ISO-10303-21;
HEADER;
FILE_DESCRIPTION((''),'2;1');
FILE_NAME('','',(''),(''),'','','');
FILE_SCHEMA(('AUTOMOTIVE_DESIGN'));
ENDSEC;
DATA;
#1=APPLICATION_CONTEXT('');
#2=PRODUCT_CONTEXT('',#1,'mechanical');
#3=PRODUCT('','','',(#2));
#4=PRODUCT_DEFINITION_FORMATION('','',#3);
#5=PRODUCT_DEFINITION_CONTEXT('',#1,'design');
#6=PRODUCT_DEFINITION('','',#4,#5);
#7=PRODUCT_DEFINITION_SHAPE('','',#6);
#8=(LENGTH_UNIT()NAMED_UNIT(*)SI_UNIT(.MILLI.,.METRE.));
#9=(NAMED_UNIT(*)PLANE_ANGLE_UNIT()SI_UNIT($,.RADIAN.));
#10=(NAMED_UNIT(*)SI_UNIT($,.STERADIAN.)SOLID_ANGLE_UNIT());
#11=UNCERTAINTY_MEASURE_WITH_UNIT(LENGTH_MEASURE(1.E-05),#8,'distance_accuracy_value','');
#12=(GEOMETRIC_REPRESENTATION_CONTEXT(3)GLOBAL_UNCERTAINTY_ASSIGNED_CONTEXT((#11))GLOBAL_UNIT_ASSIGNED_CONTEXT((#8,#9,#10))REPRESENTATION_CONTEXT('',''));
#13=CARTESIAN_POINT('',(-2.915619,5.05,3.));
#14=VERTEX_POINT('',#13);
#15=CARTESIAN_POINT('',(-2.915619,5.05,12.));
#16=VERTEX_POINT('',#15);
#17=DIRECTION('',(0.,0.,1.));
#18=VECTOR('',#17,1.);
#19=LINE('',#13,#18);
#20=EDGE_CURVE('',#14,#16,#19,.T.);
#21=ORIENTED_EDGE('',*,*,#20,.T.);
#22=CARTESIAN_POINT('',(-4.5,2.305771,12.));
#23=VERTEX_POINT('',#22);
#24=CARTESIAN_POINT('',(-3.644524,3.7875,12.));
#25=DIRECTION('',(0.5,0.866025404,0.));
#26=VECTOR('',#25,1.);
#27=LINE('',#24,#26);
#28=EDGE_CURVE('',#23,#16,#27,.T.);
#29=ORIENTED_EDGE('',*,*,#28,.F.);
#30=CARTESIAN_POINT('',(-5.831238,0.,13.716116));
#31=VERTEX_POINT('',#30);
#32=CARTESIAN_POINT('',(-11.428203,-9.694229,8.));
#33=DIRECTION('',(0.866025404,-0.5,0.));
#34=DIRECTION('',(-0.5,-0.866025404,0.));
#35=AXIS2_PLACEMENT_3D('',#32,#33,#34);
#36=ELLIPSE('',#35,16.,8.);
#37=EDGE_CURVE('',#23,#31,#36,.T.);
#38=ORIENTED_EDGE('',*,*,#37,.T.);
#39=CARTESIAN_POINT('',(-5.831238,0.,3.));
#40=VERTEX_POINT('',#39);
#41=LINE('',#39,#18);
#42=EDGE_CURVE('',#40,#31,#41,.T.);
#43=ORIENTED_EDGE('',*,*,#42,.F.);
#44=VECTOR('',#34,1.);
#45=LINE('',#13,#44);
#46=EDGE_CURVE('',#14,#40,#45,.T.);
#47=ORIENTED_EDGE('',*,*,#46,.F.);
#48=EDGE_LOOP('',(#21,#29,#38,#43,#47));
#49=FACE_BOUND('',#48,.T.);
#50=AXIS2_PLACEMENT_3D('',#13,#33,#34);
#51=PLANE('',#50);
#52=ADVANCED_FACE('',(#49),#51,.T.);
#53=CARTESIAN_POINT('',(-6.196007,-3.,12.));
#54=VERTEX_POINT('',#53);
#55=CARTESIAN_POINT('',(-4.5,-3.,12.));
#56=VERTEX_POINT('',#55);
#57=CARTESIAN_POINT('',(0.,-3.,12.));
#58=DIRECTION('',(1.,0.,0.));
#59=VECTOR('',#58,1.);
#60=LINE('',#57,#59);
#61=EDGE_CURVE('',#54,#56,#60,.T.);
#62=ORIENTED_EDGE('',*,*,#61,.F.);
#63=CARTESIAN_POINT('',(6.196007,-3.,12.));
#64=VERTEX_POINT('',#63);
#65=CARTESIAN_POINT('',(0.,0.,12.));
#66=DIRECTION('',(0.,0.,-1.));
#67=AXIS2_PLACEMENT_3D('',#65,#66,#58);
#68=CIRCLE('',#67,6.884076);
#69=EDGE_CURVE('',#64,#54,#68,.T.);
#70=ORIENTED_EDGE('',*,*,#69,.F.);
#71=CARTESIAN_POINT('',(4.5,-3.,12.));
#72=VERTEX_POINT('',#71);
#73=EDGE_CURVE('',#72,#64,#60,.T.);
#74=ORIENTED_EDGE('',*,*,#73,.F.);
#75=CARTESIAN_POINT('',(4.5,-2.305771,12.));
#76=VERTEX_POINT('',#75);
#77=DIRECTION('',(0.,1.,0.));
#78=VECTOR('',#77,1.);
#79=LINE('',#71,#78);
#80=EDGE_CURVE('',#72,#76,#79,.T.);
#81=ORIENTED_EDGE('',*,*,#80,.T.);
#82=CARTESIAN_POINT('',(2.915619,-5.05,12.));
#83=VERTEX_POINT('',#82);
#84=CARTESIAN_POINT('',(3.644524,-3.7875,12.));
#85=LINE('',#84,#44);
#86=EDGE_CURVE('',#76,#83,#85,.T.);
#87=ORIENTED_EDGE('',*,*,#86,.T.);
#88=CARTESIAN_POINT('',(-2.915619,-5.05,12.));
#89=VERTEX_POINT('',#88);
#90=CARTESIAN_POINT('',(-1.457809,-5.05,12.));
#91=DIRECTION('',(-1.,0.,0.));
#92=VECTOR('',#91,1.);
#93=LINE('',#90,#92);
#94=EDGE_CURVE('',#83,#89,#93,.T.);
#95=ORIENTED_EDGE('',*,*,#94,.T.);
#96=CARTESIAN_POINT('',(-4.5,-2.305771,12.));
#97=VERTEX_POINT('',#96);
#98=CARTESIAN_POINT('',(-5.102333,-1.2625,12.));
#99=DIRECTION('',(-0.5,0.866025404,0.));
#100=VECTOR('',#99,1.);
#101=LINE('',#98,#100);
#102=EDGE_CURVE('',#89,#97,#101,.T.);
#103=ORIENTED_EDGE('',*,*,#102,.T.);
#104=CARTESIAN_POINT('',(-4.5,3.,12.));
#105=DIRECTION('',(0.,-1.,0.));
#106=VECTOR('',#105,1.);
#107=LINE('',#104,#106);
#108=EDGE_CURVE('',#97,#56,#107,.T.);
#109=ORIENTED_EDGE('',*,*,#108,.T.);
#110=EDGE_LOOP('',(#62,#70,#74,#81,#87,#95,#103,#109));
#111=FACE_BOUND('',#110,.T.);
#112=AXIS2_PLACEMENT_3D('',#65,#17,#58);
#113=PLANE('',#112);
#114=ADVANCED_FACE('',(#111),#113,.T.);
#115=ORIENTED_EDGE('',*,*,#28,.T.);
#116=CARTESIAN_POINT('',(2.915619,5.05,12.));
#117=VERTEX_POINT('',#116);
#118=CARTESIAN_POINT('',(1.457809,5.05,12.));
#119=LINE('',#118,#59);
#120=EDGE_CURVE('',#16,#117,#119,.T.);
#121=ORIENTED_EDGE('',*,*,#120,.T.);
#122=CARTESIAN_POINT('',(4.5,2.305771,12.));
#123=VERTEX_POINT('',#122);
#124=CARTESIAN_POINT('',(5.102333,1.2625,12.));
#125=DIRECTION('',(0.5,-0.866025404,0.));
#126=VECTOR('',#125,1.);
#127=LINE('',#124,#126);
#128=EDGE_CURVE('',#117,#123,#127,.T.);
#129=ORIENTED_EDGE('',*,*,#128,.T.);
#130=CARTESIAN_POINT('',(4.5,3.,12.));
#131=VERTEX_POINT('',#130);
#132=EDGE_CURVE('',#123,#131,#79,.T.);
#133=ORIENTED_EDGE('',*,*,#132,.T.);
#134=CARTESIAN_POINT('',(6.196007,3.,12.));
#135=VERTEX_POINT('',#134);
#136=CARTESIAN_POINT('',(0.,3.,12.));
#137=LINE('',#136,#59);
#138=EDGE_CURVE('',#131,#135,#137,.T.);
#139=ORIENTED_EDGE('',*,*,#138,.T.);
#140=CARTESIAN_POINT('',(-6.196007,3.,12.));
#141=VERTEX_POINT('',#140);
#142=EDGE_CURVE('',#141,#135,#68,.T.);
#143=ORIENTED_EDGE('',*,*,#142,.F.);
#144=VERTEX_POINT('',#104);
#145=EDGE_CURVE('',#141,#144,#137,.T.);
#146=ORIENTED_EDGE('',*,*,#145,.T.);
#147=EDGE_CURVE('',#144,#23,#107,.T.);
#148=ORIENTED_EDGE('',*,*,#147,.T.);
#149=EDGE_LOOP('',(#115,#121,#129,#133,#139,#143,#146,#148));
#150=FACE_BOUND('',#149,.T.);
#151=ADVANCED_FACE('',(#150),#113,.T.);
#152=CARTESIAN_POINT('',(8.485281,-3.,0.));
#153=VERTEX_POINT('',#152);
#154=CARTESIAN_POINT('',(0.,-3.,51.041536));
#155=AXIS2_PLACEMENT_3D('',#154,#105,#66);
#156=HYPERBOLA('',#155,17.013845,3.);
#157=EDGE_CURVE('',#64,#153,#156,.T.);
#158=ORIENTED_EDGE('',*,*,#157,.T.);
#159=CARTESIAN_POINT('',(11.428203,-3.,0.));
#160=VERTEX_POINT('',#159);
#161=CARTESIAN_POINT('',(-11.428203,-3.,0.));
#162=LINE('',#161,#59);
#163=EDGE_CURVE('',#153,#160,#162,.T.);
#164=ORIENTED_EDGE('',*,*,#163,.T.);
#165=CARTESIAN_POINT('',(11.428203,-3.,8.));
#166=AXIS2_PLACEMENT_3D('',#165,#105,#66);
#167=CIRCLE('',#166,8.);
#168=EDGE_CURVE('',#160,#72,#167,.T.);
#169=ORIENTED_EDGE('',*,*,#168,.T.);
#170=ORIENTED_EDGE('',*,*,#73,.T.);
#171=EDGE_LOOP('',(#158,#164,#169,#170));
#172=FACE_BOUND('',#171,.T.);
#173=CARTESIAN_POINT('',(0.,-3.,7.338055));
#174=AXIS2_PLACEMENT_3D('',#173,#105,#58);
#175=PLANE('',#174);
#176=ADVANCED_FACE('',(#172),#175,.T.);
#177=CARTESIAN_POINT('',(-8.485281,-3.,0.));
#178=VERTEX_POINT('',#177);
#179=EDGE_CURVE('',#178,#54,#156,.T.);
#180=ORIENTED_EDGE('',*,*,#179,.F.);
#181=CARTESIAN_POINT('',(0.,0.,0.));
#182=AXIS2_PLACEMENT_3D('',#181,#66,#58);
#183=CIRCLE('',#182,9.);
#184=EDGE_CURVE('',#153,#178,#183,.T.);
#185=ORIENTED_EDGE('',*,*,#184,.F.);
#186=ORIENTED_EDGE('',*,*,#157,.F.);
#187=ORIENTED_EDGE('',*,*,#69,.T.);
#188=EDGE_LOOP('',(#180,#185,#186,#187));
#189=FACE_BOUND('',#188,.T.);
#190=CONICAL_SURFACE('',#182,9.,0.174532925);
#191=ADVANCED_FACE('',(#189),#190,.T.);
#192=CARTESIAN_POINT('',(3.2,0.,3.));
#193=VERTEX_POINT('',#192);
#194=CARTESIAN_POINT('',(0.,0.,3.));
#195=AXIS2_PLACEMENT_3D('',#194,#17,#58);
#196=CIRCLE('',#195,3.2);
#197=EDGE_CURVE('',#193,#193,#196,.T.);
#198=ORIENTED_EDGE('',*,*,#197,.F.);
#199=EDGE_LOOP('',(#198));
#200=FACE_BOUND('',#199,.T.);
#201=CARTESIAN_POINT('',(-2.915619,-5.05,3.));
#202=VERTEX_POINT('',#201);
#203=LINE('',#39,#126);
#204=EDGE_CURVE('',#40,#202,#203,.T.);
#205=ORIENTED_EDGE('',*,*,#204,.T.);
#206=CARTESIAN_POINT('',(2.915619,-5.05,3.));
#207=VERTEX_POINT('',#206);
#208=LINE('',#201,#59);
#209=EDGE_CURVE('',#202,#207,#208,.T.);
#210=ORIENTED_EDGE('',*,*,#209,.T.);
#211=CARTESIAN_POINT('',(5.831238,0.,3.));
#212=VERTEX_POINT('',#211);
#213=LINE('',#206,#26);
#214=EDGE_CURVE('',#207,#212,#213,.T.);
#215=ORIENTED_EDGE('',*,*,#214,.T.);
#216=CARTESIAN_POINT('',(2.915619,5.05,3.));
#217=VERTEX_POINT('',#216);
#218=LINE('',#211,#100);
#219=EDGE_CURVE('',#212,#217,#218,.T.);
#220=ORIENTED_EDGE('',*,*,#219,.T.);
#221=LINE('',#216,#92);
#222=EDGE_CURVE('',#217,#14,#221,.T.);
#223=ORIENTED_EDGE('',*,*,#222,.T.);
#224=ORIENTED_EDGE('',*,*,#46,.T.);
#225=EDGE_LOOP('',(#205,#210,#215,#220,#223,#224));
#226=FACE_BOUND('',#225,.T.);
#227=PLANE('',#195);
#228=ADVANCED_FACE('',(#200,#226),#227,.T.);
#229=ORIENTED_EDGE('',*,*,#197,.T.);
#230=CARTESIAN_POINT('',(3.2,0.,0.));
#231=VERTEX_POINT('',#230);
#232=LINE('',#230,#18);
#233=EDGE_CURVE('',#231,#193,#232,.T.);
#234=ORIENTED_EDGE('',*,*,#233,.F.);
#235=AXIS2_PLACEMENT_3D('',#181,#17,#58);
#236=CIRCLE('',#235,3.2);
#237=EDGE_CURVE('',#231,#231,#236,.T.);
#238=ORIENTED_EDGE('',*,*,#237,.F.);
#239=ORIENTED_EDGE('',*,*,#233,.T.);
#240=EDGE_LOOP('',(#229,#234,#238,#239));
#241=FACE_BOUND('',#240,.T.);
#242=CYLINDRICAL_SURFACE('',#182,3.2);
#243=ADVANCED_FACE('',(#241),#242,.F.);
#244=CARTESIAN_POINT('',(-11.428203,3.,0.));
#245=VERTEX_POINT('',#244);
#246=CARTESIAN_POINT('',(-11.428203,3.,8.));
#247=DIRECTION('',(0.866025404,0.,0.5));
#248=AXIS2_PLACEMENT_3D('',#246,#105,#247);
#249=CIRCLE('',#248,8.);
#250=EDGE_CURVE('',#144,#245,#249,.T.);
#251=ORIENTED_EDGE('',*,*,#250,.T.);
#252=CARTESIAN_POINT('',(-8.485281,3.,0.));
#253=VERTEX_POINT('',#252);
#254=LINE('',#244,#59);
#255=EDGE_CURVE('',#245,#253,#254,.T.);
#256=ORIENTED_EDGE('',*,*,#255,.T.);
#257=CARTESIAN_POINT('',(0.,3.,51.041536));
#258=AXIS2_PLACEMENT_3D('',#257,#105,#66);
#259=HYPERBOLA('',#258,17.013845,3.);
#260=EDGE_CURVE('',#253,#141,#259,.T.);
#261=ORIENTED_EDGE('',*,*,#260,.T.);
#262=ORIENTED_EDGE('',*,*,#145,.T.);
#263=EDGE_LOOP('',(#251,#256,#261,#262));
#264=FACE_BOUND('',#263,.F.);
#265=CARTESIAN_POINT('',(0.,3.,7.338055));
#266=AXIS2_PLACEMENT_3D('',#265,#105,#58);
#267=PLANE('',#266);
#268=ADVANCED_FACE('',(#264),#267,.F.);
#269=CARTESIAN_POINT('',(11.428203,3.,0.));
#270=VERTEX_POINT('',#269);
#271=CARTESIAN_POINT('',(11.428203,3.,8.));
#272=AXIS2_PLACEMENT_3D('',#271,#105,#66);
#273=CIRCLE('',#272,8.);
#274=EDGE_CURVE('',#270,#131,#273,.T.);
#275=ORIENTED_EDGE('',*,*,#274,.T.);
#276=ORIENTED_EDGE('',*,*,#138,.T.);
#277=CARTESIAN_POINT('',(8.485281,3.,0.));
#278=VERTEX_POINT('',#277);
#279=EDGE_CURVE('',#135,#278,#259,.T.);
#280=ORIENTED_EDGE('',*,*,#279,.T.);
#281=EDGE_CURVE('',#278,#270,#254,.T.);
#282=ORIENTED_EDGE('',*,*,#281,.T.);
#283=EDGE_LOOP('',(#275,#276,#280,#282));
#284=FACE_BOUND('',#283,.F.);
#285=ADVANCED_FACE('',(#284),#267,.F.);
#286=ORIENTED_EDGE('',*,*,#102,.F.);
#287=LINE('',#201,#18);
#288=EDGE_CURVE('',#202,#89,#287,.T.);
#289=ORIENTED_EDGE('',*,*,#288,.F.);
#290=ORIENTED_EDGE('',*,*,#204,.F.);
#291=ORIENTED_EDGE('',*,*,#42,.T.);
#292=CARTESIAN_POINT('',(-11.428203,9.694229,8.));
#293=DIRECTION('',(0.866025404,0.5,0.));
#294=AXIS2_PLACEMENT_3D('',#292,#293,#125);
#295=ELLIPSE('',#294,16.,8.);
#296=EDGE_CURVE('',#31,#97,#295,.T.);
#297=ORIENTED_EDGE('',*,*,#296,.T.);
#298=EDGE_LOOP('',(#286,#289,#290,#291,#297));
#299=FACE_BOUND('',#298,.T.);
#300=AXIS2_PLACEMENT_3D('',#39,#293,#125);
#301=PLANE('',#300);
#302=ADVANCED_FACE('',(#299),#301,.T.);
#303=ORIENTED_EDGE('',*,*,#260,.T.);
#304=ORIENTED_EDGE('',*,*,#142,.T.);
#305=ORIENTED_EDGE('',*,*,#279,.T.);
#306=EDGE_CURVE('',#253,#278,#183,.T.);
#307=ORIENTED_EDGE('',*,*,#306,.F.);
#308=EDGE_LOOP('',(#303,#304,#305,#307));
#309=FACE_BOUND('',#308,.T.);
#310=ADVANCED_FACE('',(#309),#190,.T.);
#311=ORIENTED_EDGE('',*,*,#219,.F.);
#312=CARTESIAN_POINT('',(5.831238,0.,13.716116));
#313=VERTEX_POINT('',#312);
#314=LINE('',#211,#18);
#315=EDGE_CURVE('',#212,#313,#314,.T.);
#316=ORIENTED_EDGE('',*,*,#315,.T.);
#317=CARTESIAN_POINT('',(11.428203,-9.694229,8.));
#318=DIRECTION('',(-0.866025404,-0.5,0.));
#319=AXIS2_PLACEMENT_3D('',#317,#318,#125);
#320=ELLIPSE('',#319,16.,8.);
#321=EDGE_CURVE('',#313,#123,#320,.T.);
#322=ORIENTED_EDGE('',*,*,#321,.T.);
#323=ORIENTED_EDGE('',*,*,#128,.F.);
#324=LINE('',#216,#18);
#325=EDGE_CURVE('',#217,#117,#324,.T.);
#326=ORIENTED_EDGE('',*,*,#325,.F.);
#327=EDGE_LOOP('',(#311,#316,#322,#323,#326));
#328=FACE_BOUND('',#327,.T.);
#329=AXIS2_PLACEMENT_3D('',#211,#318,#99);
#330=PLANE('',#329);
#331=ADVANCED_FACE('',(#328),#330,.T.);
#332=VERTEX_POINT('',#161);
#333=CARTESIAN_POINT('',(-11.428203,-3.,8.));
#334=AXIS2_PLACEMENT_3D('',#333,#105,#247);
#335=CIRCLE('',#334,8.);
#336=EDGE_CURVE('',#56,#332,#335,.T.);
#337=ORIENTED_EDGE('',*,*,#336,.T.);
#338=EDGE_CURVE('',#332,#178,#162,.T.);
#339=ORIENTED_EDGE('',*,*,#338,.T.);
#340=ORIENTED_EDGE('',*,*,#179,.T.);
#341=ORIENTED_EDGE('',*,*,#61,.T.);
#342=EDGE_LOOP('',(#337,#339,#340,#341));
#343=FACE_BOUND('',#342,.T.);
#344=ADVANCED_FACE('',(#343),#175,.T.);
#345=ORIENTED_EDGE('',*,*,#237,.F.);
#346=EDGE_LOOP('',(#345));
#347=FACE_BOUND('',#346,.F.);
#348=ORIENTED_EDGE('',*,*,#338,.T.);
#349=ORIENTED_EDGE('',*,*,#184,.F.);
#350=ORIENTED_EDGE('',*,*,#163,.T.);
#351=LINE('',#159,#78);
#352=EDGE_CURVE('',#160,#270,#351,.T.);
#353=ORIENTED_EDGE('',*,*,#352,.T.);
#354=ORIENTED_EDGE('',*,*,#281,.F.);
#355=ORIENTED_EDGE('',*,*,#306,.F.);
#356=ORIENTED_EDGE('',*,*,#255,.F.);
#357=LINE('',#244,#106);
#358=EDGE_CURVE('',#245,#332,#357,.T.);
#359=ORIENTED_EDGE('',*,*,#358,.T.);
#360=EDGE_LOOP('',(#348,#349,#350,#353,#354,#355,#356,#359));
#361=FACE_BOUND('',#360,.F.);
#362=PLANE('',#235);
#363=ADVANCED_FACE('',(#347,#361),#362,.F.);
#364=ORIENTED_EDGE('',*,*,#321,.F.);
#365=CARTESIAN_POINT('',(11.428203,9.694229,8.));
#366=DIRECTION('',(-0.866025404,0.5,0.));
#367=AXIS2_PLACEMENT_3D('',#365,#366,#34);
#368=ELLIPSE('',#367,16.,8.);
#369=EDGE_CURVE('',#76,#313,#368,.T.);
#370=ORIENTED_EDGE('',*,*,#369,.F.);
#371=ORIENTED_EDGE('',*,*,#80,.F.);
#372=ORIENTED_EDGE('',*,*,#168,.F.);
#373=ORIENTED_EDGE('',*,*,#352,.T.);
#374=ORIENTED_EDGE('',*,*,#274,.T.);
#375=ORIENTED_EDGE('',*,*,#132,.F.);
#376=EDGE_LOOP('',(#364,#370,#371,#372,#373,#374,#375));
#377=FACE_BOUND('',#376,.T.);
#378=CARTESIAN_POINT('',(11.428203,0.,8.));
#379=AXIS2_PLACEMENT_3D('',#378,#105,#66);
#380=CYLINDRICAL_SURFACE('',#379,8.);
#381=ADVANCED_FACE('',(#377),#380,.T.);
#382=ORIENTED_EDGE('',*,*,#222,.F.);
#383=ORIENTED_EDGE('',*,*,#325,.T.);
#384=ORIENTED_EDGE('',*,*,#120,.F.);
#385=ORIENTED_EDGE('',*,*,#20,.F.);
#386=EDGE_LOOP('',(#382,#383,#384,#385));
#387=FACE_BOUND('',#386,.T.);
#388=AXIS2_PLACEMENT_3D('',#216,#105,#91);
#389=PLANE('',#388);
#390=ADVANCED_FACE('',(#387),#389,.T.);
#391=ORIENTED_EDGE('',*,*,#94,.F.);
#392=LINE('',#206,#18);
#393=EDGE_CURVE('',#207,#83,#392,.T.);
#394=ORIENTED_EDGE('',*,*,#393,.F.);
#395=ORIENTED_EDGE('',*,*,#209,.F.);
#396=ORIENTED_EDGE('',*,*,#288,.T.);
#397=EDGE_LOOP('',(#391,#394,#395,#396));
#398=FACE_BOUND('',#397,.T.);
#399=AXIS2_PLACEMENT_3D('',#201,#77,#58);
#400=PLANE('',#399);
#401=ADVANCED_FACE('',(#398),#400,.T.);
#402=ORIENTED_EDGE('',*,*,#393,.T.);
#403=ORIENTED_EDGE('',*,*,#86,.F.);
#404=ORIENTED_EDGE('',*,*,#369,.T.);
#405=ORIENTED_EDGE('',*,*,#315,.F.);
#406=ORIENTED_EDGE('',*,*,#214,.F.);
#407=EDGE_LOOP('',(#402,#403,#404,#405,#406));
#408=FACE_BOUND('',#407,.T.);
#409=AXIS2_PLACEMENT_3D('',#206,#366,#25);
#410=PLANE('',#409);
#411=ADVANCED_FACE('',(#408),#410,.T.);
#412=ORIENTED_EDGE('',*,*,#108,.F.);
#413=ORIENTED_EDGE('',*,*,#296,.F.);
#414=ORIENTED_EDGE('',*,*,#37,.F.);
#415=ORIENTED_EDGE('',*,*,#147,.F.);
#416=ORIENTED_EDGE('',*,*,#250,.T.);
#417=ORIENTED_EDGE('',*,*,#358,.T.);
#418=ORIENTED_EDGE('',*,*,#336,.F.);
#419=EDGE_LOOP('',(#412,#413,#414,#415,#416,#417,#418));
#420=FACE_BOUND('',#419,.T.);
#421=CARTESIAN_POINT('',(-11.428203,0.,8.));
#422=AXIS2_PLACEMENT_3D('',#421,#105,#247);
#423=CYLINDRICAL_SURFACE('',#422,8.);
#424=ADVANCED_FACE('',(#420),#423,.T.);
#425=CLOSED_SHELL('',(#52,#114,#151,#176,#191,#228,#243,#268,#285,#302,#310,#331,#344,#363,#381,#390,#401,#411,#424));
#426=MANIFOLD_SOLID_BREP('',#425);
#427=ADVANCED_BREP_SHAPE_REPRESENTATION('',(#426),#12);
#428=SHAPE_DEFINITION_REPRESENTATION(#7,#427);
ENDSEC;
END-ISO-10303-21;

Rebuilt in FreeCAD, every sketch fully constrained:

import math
import FreeCAD as App
import Part
import Sketcher
Q = App.Units.Quantity

doc = App.newDocument("Part")
body = doc.addObject("PartDesign::Body", "Body")

# Sketch on XY plane
sketch1 = body.newObject("Sketcher::SketchObject", "Sketch")
sketch1.AttachmentSupport = (doc.getObject("XY_Plane"), [""])
sketch1.MapMode = "FlatFace"
sketch1.addGeometry(Part.Circle(App.Vector(0, 0, 0), App.Vector(0, 0, 1), 9), False)
sketch1.addConstraint(Sketcher.Constraint("Coincident", 0, 3, -1, 1))
sketch1.addConstraint(Sketcher.Constraint("Diameter", 0, 18.0))
pad1 = body.newObject("PartDesign::Pad", "Pad")
pad1.Profile = sketch1
pad1.Length = 12
pad1.TaperAngle = -10

# Sketch on XZ plane
sketch2 = body.newObject("Sketcher::SketchObject", "Sketch001")
sketch2.AttachmentSupport = (doc.getObject("XZ_Plane"), [""])
sketch2.MapMode = "FlatFace"
sketch2.addGeometry(Part.LineSegment(App.Vector(4.5, 12, 0), App.Vector(-4.5, 12, 0)), False)
sketch2.addGeometry(Part.ArcOfCircle(Part.Circle(App.Vector(-11.428203, 8, 0), App.Vector(0, 0, 1), 8), math.radians(30), math.radians(270)), False)
sketch2.addGeometry(Part.LineSegment(App.Vector(-11.428203, 0, 0), App.Vector(11.428203, 0, 0)), False)
sketch2.addGeometry(Part.ArcOfCircle(Part.Circle(App.Vector(11.428203, 8, 0), App.Vector(0, 0, 1), 8), math.radians(-90), math.radians(150)), False)
sketch2.addConstraint(Sketcher.Constraint("Coincident", 0, 2, 1, 1))
sketch2.addConstraint(Sketcher.Constraint("Tangent", 1, 2, 2, 1))
sketch2.addConstraint(Sketcher.Constraint("Tangent", 2, 2, 3, 1))
sketch2.addConstraint(Sketcher.Constraint("Coincident", 3, 2, 0, 1))
sketch2.addConstraint(Sketcher.Constraint("Horizontal", 0))
sketch2.addConstraint(Sketcher.Constraint("Horizontal", 2))
sketch2.addConstraint(Sketcher.Constraint("Equal", 1, 3))
sketch2.addConstraint(Sketcher.Constraint("Symmetric", 1, 2, 2, 2, -1, 1))
sketch2.addConstraint(Sketcher.Constraint("Radius", 1, 8.0))
sketch2.addConstraint(Sketcher.Constraint("DistanceX", 0, 2, 0, 1, 9.0))
sketch2.addConstraint(Sketcher.Constraint("DistanceY", -1, 1, 0, 2, 12.0))
pad2 = body.newObject("PartDesign::Pad", "Pad001")
pad2.Profile = sketch2
pad2.Length = 6
pad2.Midplane = True

# Sketch on XY plane
sketch3 = body.newObject("Sketcher::SketchObject", "Sketch002")
sketch3.AttachmentSupport = (doc.getObject("XY_Plane"), [""])
sketch3.MapMode = "FlatFace"
sketch3.addGeometry(Part.Circle(App.Vector(0, 0, 0), App.Vector(0, 0, 1), 3.2), False)
sketch3.addConstraint(Sketcher.Constraint("Coincident", 0, 3, -1, 1))
sketch3.addConstraint(Sketcher.Constraint("Diameter", 0, 6.4))
pocket1 = body.newObject("PartDesign::Pocket", "Pocket")
pocket1.Profile = sketch3
pocket1.Type = "ThroughAll"
pocket1.Reversed = True

# Sketch on XY plane
sketch4 = body.newObject("Sketcher::SketchObject", "Sketch003")
sketch4.AttachmentSupport = (doc.getObject("XY_Plane"), [""])
sketch4.MapMode = "FlatFace"
sketch4.AttachmentOffset = App.Placement(App.Vector(0, 0, 3), App.Rotation())
sketch4.addGeometry(Part.LineSegment(App.Vector(2.915619, 5.05, 0), App.Vector(-2.915619, 5.05, 0)), False)
sketch4.addGeometry(Part.LineSegment(App.Vector(-2.915619, 5.05, 0), App.Vector(-5.831238, 0, 0)), False)
sketch4.addGeometry(Part.LineSegment(App.Vector(-5.831238, 0, 0), App.Vector(-2.915619, -5.05, 0)), False)
sketch4.addGeometry(Part.LineSegment(App.Vector(-2.915619, -5.05, 0), App.Vector(2.915619, -5.05, 0)), False)
sketch4.addGeometry(Part.LineSegment(App.Vector(2.915619, -5.05, 0), App.Vector(5.831238, 0, 0)), False)
sketch4.addGeometry(Part.LineSegment(App.Vector(5.831238, 0, 0), App.Vector(2.915619, 5.05, 0)), False)
sketch4.addGeometry(Part.Circle(App.Vector(0, 0, 0), App.Vector(0, 0, 1), 3.2), False)
sketch4.addConstraint(Sketcher.Constraint("Coincident", 0, 2, 1, 1))
sketch4.addConstraint(Sketcher.Constraint("Coincident", 1, 2, 2, 1))
sketch4.addConstraint(Sketcher.Constraint("Coincident", 2, 2, 3, 1))
sketch4.addConstraint(Sketcher.Constraint("Coincident", 3, 2, 4, 1))
sketch4.addConstraint(Sketcher.Constraint("Coincident", 4, 2, 5, 1))
sketch4.addConstraint(Sketcher.Constraint("Coincident", 5, 2, 0, 1))
sketch4.addConstraint(Sketcher.Constraint("Horizontal", 0))
sketch4.addConstraint(Sketcher.Constraint("Horizontal", 3))
sketch4.addConstraint(Sketcher.Constraint("Coincident", 6, 3, -1, 1))
sketch4.addConstraint(Sketcher.Constraint("Symmetric", 0, 2, 3, 2, -1, 1))
sketch4.addConstraint(Sketcher.Constraint("Symmetric", 1, 2, 4, 2, -1, 1))
sketch4.addConstraint(Sketcher.Constraint("PointOnObject", 1, 2, -1))
sketch4.addConstraint(Sketcher.Constraint("Parallel", 2, 5))
sketch4.addConstraint(Sketcher.Constraint("Vertical", 0, 2, 2, 2))
sketch4.addConstraint(Sketcher.Constraint("Diameter", 6, 6.4))
sketch4.addConstraint(Sketcher.Constraint("Angle", 1, Q("-120 deg")))
sketch4.addConstraint(Sketcher.Constraint("DistanceY", 2, 2, 0, 2, 10.1))
sketch4.addConstraint(Sketcher.Constraint("DistanceX", 0, 2, 0, 1, 5.831238))
pocket2 = body.newObject("PartDesign::Pocket", "Pocket001")
pocket2.Profile = sketch4
pocket2.Length = 22
pocket2.Reversed = True

doc.recompute()
